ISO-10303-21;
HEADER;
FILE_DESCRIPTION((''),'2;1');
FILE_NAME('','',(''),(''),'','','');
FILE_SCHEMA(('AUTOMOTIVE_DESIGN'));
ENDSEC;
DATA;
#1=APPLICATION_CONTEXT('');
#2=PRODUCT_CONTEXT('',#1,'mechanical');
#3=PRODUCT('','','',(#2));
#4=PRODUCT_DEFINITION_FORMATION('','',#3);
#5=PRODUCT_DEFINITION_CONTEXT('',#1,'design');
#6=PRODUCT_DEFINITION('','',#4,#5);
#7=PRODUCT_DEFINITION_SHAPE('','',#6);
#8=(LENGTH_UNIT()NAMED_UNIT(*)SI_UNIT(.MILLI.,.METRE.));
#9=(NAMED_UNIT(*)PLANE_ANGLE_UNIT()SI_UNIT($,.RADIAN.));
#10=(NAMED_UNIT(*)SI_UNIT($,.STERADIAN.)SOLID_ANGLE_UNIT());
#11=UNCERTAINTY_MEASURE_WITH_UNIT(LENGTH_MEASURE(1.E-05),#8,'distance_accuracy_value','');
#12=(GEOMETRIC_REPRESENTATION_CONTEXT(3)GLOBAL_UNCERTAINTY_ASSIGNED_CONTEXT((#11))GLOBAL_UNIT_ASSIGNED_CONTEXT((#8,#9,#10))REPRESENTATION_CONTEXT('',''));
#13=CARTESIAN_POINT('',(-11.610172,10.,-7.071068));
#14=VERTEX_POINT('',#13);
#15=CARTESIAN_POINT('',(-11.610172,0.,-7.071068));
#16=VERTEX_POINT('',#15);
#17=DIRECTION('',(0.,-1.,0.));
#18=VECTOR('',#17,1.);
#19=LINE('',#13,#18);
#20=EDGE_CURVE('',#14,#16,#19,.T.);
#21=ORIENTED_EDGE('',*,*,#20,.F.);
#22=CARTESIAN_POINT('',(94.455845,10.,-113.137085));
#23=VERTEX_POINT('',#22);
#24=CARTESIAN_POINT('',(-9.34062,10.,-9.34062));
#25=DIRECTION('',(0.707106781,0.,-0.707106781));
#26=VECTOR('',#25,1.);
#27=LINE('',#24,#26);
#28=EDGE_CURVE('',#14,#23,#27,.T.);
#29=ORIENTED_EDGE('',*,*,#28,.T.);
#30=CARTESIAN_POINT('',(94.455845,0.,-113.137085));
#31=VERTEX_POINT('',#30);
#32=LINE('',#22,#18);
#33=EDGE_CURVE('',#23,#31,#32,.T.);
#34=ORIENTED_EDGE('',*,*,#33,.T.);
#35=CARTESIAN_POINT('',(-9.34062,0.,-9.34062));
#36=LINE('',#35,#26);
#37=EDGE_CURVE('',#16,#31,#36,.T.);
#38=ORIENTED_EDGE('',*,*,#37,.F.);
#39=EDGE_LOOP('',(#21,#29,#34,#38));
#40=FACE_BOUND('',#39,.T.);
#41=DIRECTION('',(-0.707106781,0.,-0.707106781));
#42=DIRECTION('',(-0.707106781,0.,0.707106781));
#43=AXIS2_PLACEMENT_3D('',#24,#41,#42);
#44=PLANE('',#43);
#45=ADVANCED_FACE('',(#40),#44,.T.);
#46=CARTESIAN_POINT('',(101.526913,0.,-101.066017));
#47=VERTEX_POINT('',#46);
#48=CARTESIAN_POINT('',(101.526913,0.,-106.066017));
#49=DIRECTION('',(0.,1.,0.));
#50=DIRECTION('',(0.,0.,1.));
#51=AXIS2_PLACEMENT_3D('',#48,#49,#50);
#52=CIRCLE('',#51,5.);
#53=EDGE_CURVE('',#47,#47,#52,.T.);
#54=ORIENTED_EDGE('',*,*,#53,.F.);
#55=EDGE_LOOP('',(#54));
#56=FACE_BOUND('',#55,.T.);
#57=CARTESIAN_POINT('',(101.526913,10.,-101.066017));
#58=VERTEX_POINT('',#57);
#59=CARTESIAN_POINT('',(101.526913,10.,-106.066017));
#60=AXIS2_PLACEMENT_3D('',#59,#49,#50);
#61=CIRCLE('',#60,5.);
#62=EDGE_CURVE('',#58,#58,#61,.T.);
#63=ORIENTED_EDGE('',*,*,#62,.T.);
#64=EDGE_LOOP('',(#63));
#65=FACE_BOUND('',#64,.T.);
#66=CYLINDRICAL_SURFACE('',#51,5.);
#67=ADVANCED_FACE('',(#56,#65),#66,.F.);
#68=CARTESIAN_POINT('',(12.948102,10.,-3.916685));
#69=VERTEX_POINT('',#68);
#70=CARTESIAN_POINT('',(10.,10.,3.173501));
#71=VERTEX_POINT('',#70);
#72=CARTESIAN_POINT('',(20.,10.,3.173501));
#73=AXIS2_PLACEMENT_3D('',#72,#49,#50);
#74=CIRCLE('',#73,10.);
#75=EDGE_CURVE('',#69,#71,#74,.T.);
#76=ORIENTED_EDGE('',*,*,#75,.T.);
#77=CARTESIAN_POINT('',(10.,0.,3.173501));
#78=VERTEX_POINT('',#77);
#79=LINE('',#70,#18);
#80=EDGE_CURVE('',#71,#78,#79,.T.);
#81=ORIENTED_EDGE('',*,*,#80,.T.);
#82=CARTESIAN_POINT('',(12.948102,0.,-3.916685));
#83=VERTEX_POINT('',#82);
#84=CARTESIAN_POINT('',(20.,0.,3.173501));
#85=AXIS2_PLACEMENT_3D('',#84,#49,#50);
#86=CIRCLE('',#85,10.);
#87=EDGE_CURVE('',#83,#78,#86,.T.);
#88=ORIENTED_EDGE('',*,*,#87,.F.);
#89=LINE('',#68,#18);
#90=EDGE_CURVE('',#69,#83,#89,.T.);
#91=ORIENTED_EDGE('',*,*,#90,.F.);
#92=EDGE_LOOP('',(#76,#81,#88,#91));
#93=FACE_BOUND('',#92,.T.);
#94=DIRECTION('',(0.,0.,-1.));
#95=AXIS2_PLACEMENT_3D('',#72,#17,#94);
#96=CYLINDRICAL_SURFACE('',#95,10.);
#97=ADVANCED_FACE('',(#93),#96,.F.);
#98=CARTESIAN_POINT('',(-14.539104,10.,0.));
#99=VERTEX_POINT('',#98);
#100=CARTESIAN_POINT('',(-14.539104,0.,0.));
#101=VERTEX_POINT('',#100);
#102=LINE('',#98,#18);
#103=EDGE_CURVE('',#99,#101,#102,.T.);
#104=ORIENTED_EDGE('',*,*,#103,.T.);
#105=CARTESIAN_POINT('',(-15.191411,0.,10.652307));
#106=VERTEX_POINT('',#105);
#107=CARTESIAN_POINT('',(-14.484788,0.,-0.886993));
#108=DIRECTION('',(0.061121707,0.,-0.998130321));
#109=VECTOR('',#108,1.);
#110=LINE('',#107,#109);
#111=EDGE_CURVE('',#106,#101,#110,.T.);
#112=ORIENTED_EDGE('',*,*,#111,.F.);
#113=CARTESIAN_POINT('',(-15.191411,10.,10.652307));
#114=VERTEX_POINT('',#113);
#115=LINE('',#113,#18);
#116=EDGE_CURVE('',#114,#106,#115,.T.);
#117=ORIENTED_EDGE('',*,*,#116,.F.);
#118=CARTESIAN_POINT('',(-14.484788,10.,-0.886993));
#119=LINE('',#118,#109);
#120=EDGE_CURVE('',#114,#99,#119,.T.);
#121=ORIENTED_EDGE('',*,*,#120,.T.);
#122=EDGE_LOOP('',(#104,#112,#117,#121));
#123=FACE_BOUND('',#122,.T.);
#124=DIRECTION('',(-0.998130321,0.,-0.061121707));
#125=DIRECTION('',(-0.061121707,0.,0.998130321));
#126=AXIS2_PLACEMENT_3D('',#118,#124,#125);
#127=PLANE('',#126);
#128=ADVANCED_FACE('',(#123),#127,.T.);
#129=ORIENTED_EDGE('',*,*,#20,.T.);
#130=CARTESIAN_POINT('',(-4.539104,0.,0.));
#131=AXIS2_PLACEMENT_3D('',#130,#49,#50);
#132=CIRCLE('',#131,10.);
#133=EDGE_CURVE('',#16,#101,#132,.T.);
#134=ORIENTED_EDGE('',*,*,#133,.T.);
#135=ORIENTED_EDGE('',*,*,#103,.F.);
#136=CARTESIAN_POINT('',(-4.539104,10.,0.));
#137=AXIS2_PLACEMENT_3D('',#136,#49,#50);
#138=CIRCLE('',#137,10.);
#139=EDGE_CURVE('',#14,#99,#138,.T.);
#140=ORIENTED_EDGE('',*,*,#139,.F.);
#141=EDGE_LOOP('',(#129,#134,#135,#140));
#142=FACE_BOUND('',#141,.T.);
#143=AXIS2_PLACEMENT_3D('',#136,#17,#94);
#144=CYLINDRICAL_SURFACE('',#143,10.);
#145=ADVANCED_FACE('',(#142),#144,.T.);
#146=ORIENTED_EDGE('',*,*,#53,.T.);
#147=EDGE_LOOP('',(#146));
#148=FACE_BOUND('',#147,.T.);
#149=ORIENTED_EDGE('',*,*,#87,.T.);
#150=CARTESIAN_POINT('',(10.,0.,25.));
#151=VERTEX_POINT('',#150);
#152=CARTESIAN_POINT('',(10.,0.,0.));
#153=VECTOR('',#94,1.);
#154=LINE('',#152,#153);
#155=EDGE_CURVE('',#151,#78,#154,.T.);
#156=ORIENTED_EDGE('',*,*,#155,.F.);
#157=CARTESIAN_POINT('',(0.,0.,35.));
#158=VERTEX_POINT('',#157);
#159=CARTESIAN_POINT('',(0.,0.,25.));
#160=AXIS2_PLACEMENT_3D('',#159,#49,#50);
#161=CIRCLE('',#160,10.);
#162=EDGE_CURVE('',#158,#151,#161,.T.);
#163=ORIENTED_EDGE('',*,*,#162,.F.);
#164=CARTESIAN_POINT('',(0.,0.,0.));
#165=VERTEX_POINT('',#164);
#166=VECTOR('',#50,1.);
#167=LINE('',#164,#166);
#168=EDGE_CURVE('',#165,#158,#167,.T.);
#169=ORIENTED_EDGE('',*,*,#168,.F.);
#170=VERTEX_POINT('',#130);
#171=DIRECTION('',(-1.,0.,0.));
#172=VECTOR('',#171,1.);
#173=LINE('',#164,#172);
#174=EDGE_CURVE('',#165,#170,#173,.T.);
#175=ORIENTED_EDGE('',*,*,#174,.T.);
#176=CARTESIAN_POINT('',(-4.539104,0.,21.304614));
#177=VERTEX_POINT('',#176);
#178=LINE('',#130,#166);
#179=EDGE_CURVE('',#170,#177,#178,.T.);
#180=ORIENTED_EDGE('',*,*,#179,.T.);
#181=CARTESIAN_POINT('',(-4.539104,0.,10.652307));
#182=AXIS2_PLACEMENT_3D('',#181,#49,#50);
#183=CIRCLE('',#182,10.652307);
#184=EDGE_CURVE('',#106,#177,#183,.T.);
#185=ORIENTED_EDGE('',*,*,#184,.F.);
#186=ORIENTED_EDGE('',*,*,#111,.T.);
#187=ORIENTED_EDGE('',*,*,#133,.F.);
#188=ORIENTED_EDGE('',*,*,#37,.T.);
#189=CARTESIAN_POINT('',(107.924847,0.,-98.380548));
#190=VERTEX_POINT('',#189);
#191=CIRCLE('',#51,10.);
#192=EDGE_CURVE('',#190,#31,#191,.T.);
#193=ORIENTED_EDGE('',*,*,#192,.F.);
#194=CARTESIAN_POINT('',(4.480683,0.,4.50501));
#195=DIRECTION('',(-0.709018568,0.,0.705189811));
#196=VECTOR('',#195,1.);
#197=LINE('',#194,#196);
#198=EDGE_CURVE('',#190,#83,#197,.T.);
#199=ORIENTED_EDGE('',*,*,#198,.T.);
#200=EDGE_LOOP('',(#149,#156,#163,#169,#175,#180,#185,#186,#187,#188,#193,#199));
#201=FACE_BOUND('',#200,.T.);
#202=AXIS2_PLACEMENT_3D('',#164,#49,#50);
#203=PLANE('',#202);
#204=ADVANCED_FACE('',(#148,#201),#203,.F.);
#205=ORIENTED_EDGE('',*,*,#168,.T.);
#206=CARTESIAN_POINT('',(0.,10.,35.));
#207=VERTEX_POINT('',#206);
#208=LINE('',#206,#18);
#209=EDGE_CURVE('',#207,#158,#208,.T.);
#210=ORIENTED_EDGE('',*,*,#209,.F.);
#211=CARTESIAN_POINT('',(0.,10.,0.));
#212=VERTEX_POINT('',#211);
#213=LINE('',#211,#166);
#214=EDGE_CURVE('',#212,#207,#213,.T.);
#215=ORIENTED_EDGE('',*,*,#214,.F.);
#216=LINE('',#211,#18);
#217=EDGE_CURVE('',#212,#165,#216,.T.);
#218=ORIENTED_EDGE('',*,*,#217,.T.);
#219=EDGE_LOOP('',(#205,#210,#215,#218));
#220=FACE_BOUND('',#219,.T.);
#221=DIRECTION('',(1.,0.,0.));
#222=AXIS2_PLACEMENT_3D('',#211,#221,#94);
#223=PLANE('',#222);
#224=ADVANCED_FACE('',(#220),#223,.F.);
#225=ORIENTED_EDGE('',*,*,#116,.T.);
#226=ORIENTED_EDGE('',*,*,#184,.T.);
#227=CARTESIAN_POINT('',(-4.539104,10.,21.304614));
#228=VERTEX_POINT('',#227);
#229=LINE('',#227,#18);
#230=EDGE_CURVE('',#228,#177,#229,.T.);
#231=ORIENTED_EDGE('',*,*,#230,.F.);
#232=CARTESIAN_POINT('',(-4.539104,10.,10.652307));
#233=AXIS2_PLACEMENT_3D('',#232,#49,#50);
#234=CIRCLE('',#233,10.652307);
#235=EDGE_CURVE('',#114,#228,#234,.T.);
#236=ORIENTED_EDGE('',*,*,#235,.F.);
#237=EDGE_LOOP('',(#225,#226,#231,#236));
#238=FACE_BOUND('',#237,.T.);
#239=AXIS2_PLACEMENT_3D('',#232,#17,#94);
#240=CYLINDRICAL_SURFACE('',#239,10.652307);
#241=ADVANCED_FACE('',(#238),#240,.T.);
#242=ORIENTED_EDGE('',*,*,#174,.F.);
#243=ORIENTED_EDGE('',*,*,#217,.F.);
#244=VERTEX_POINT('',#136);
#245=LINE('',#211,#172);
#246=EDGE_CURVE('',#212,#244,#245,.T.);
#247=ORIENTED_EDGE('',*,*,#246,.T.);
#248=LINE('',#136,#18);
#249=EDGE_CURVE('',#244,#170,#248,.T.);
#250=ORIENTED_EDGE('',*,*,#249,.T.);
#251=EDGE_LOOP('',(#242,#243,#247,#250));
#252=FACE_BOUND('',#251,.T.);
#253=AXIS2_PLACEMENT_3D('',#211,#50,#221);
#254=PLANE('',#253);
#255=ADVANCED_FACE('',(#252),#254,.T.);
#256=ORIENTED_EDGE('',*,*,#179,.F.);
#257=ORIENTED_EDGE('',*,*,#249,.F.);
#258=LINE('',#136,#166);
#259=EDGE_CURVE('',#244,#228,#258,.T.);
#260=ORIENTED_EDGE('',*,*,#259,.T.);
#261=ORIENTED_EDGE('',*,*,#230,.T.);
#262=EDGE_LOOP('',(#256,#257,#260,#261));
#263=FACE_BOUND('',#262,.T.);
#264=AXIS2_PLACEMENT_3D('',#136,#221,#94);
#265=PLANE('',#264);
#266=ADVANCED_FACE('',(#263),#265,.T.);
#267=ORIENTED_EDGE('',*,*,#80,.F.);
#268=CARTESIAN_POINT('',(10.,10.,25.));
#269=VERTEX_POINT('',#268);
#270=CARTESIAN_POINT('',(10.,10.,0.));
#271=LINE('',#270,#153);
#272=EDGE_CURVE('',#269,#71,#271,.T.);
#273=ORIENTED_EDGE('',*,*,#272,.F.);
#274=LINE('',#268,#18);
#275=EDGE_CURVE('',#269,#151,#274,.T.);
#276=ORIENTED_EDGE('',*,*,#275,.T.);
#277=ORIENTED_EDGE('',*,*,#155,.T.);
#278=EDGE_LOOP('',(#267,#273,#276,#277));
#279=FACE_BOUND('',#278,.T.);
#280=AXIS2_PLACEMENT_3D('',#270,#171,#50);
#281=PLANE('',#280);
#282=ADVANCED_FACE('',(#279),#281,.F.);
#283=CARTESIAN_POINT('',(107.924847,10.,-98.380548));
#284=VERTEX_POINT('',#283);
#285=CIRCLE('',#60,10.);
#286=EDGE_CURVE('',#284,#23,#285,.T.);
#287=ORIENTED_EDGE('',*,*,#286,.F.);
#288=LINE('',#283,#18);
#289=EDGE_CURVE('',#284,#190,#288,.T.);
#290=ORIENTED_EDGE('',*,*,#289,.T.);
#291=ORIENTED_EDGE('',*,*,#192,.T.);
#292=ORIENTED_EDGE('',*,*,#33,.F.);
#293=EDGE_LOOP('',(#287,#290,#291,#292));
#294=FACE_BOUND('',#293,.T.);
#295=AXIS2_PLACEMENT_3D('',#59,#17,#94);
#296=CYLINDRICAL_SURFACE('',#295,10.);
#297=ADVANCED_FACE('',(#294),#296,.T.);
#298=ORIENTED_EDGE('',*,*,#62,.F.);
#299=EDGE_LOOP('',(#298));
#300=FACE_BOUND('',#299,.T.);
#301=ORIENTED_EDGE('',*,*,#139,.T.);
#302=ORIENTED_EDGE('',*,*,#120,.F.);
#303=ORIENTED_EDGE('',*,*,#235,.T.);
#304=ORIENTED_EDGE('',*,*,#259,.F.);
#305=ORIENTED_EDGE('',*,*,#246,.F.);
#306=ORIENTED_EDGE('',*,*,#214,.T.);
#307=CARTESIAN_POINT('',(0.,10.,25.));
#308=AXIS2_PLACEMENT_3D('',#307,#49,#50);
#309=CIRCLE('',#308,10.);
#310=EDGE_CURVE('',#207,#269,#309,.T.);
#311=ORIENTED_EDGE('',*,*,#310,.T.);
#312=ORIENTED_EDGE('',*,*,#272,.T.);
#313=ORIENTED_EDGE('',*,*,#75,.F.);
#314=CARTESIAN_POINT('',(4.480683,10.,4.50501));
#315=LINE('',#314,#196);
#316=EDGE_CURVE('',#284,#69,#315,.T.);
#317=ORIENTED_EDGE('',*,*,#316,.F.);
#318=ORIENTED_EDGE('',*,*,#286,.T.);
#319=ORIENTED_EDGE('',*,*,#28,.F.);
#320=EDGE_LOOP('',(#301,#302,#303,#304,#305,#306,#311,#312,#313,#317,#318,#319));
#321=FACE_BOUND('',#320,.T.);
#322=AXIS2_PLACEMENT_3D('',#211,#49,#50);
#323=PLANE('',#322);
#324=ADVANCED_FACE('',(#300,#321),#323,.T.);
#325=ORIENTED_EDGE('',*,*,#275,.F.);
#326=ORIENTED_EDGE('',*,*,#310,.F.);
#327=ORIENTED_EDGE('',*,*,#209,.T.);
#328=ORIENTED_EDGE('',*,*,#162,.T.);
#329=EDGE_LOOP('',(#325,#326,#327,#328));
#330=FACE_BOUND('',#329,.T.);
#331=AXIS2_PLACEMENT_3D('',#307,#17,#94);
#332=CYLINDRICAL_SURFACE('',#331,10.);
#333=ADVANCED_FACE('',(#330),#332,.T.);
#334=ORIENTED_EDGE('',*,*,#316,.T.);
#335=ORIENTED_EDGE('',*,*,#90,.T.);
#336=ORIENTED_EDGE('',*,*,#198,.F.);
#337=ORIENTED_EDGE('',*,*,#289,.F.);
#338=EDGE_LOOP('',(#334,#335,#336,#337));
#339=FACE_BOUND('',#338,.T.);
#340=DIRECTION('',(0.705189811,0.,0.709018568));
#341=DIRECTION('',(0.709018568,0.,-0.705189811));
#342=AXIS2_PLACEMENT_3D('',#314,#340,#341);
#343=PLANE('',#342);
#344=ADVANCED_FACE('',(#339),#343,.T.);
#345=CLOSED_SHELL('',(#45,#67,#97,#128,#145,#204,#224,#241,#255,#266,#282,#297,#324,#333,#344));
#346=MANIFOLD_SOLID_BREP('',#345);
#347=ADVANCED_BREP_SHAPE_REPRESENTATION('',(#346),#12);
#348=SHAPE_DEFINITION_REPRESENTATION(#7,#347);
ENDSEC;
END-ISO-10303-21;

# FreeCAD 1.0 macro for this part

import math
import FreeCAD as App
import Part
import Sketcher

V = App.Vector
Q = App.Units.Quantity

doc = App.newDocument("Part")
body = doc.addObject("PartDesign::Body", "Body")

sketch1 = body.newObject("Sketcher::SketchObject", "Sketch")
sketch1.AttachmentSupport = (doc.getObject("XZ_Plane"), [""])
sketch1.MapMode = "FlatFace"
sketch1.addGeometry(Part.LineSegment(V(-4.539104, 0, 0), V(0, 0, 0)), False)
sketch1.addGeometry(Part.LineSegment(V(0, 0, 0), V(0, 35, 0)), False)
sketch1.addGeometry(Part.ArcOfCircle(Part.Circle(V(0, 25, 0), V(0, 0, 1), 10), math.radians(0), math.radians(90)), False)
sketch1.addGeometry(Part.LineSegment(V(10, 25, 0), V(10, 3.173501, 0)), False)
sketch1.addGeometry(Part.ArcOfCircle(Part.Circle(V(20, 3.173501, 0), V(0, 0, 1), 10), math.radians(-180), math.radians(-134.844885)), False)
sketch1.addGeometry(Part.LineSegment(V(12.948101, -3.916684, 0), V(107.924847, -98.380548, 0)), False)
sketch1.addGeometry(Part.ArcOfCircle(Part.Circle(V(101.526913, -106.066017, 0), V(0, 0, 1), 10), math.radians(-135), math.radians(50.223582)), False)
sketch1.addGeometry(Part.LineSegment(V(94.455845, -113.137085, 0), V(-11.610172, -7.071068, 0)), False)
sketch1.addGeometry(Part.ArcOfCircle(Part.Circle(V(-4.539104, 0, 0), V(0, 0, 1), 10), math.radians(180), math.radians(225)), False)
sketch1.addGeometry(Part.LineSegment(V(-14.539104, 0, 0), V(-15.191411, 10.652307, 0)), False)
sketch1.addGeometry(Part.ArcOfCircle(Part.Circle(V(-4.539104, 10.652307, 0), V(0, 0, 1), 10.652307), math.radians(90), math.radians(180)), False)
sketch1.addGeometry(Part.LineSegment(V(-4.539104, 21.304614, 0), V(-4.539104, 0, 0)), False)
sketch1.addConstraint(Sketcher.Constraint("Coincident", 0, 2, 1, 1))
sketch1.addConstraint(Sketcher.Constraint("Coincident", 1, 2, 2, 2))
sketch1.addConstraint(Sketcher.Constraint("Tangent", 2, 1, 3, 1))
sketch1.addConstraint(Sketcher.Constraint("Tangent", 3, 2, 4, 1))
sketch1.addConstraint(Sketcher.Constraint("Tangent", 4, 2, 5, 1))
sketch1.addConstraint(Sketcher.Constraint("Coincident", 5, 2, 6, 2))
sketch1.addConstraint(Sketcher.Constraint("Tangent", 6, 1, 7, 1))
sketch1.addConstraint(Sketcher.Constraint("Tangent", 7, 2, 8, 2))
sketch1.addConstraint(Sketcher.Constraint("Coincident", 8, 1, 9, 1))
sketch1.addConstraint(Sketcher.Constraint("Coincident", 9, 2, 10, 2))
sketch1.addConstraint(Sketcher.Constraint("Coincident", 10, 1, 11, 1))
sketch1.addConstraint(Sketcher.Constraint("Coincident", 11, 2, 0, 1))
sketch1.addConstraint(Sketcher.Constraint("Horizontal", 0))
sketch1.addConstraint(Sketcher.Constraint("Vertical", 1))
sketch1.addConstraint(Sketcher.Constraint("Vertical", 3))
sketch1.addConstraint(Sketcher.Constraint("Vertical", 11))
sketch1.addConstraint(Sketcher.Constraint("Coincident", 0, 2, -1, 1))
sketch1.addConstraint(Sketcher.Constraint("Coincident", 11, 2, 8, 3))
sketch1.addConstraint(Sketcher.Constraint("Equal", 2, 4))
sketch1.addConstraint(Sketcher.Constraint("Equal", 4, 6))
sketch1.addConstraint(Sketcher.Constraint("Equal", 6, 8))
sketch1.addConstraint(Sketcher.Constraint("PointOnObject", 2, 3, -2))
sketch1.addConstraint(Sketcher.Constraint("PointOnObject", 8, 1, -1))
sketch1.addConstraint(Sketcher.Constraint("Horizontal", 10, 3, 9, 2))
sketch1.addConstraint(Sketcher.Constraint("Vertical", 8, 3, 10, 3))
sketch1.addConstraint(Sketcher.Constraint("Radius", 2, Q("10 mm")))
sketch1.addConstraint(Sketcher.Constraint("DistanceY", 1, 1, 1, 2, Q("35 mm")))
sketch1.addConstraint(Sketcher.Constraint("Angle", 7, Q("135 deg")))
sketch1.addConstraint(Sketcher.Constraint("Distance", 7, Q("150 mm")))
sketch1.addConstraint(Sketcher.Constraint("DistanceY", 3, 2, 3, 1, Q("21.826499 mm")))
sketch1.addConstraint(Sketcher.Constraint("Radius", 10, Q("10.652307 mm")))
sketch1.addConstraint(Sketcher.Constraint("Distance", 5, Q("133.955231 mm")))
sketch1.addConstraint(Sketcher.Constraint("Distance", 9, Q("10.67226 mm")))
sketch1.addConstraint(Sketcher.Constraint("DistanceX", 0, 1, 0, 2, Q("4.539104 mm")))
pad1 = body.newObject("PartDesign::Pad", "Pad")
pad1.Profile = sketch1
pad1.Length = 10
pad1.Reversed = True

sketch2 = body.newObject("Sketcher::SketchObject", "Sketch001")
sketch2.AttachmentSupport = (doc.getObject("XZ_Plane"), [""])
sketch2.MapMode = "FlatFace"
sketch2.AttachmentOffset = App.Placement(V(0, 0, -10), App.Rotation())
sketch2.addGeometry(Part.Circle(V(101.526913, -106.066017, 0), V(0, 0, 1), 5), False)
sketch2.addConstraint(Sketcher.Constraint("Diameter", 0, Q("10 mm")))
sketch2.addConstraint(Sketcher.Constraint("DistanceX", -1, 1, 0, 3, Q("101.526913 mm")))
sketch2.addConstraint(Sketcher.Constraint("DistanceY", 0, 3, -1, 1, Q("106.066017 mm")))
pocket1 = body.newObject("PartDesign::Pocket", "Pocket")
pocket1.Profile = sketch2
pocket1.Type = "ThroughAll"
pocket1.Reversed = True

doc.recompute()
